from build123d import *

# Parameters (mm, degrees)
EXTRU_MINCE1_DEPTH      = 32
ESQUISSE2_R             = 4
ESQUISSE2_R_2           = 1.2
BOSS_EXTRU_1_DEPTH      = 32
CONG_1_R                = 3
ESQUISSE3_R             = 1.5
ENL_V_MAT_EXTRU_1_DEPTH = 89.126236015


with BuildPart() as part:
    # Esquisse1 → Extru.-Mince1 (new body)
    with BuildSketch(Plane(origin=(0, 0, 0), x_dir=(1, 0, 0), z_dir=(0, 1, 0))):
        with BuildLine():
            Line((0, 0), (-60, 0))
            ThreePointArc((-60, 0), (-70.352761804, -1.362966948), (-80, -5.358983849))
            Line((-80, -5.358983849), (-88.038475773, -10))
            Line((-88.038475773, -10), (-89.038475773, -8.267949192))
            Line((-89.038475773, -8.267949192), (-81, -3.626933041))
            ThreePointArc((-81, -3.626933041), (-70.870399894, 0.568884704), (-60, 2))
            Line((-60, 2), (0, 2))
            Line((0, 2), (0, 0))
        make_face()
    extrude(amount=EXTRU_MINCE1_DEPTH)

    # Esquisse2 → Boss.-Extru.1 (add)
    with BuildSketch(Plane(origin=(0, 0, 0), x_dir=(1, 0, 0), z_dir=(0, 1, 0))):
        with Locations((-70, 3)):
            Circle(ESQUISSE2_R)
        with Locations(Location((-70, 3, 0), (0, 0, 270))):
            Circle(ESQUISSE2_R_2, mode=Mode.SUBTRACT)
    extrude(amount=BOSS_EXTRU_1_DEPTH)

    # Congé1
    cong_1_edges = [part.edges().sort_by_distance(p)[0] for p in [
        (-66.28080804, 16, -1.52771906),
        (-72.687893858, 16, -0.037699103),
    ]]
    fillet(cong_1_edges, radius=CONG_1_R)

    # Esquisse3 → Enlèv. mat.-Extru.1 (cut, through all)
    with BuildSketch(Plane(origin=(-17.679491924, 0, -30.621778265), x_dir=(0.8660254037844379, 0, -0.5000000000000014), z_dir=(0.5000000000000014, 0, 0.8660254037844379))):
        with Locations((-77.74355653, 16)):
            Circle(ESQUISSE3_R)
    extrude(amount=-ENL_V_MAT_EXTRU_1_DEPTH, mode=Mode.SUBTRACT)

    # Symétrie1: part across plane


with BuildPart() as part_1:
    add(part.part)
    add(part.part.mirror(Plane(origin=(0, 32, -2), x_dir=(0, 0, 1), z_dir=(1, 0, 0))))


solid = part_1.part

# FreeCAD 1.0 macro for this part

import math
import FreeCAD as App
import Part
import Sketcher

V = App.Vector
Q = App.Units.Quantity


def edges_at(feature, points):
    """Names of the edges that pass closest to the given points."""
    edges = feature.Shape.Edges
    near = lambda p: min(range(len(edges)), key=lambda i: edges[i].distToShape(Part.Vertex(*p))[0])
    return sorted({f"Edge{near(p) + 1}" for p in points})

doc = App.newDocument("Part")
params = doc.addObject("Spreadsheet::Sheet", "Params")
for row, (alias, value) in enumerate([
    ("sketch1_radius", "42 mm"),
    ("sketch1_radius2", "40 mm"),
    ("sketch1_width", "60 mm"),
    ("pad1_length", "32 mm"),
    ("sketch2_diameter", "8 mm"),
    ("sketch2_diameter2", "2.4 mm"),
    ("pad2_length", "32 mm"),
    ("fillet_radius", "3 mm"),
    ("sketch3_diameter", "3 mm"),
], start=1):
    params.set(f"A{row}", alias)
    params.set(f"B{row}", "=" + value)
    params.setAlias(f"B{row}", alias)

body = doc.addObject("PartDesign::Body", "Body")

# Sketch on XZ plane
sketch1 = body.newObject("Sketcher::SketchObject", "Sketch")
sketch1.AttachmentSupport = (doc.getObject("XZ_Plane"), [""])
sketch1.MapMode = "FlatFace"
sketch1.addGeometry([
    Part.LineSegment(V(-60, 0, 0), V(0, 0, 0)),  # 0
    Part.LineSegment(V(0, 0, 0), V(0, -2, 0)),  # 1
    Part.LineSegment(V(0, -2, 0), V(-60, -2, 0)),  # 2
    Part.ArcOfCircle(Part.Circle(V(-60, 40, 0), V(0, 0, 1), 42), math.radians(-120), math.radians(-90)),  # 3
    Part.LineSegment(V(-81, 3.6, 0), V(-89, 8.3, 0)),  # 4
    Part.LineSegment(V(-89, 8.3, 0), V(-88, 10, 0)),  # 5
    Part.LineSegment(V(-88, 10, 0), V(-80, 5.4, 0)),  # 6
    Part.ArcOfCircle(Part.Circle(V(-60, 40, 0), V(0, 0, 1), 40), math.radians(-120), math.radians(-90)),  # 7
], False)
sketch1.addConstraint([
    Sketcher.Constraint("Coincident", 0, 2, 1, 1),
    Sketcher.Constraint("Coincident", 1, 2, 2, 1),
    Sketcher.Constraint("Tangent", 2, 2, 3, 2),
    Sketcher.Constraint("Tangent", 3, 1, 4, 1),
    Sketcher.Constraint("Coincident", 4, 2, 5, 1),
    Sketcher.Constraint("Coincident", 5, 2, 6, 1),
    Sketcher.Constraint("Tangent", 6, 2, 7, 1),
    Sketcher.Constraint("Tangent", 7, 2, 0, 1),
    Sketcher.Constraint("Horizontal", 0),
    Sketcher.Constraint("Vertical", 1),
    Sketcher.Constraint("Horizontal", 2),
    Sketcher.Constraint("Coincident", 0, 2, -1, 1),
    Sketcher.Constraint("Coincident", 7, 3, 3, 3),
    Sketcher.Constraint("Perpendicular", 4, 5),
    Sketcher.Constraint("Perpendicular", 5, 6),
    Sketcher.Constraint("Radius", 3, 42.0),
    Sketcher.Constraint("Radius", 7, 40.0),
    Sketcher.Constraint("DistanceX", 0, 1, 0, 2, 60.0),
    Sketcher.Constraint("Angle", 4, Q("150 deg")),
    Sketcher.Constraint("DistanceY", -1, 1, 5, 2, 10.0),
])
sketch1.setExpression("Constraints[15]", "Params.sketch1_radius")
sketch1.setExpression("Constraints[16]", "Params.sketch1_radius2")
sketch1.setExpression("Constraints[17]", "Params.sketch1_width")
pad1 = body.newObject("PartDesign::Pad", "Pad")
pad1.Profile = sketch1
pad1.setExpression("Length", "Params.pad1_length")
pad1.Reversed = True

# Sketch on XZ plane
sketch2 = body.newObject("Sketcher::SketchObject", "Sketch001")
sketch2.AttachmentSupport = (doc.getObject("XZ_Plane"), [""])
sketch2.MapMode = "FlatFace"
sketch2.addGeometry([
    Part.Circle(V(-70, -3, 0), V(0, 0, 1), 4),
    Part.Circle(V(-70, -3, 0), V(0, 0, 1), 1.2),
], False)
sketch2.addConstraint([
    Sketcher.Constraint("Coincident", 1, 3, 0, 3),
    Sketcher.Constraint("Diameter", 0, 8.0),
    Sketcher.Constraint("Diameter", 1, 2.4),
    Sketcher.Constraint("DistanceX", 0, 3, -1, 1, 70.0),
    Sketcher.Constraint("DistanceY", 0, 3, -1, 1, 3.0),
])
sketch2.setExpression("Constraints[1]", "Params.sketch2_diameter")
sketch2.setExpression("Constraints[2]", "Params.sketch2_diameter2")
pad2 = body.newObject("PartDesign::Pad", "Pad001")
pad2.Profile = sketch2
pad2.setExpression("Length", "Params.pad2_length")
pad2.Reversed = True
doc.recompute()

fillet = body.newObject("PartDesign::Fillet", "Fillet")
fillet.Base = (pad2, edges_at(pad2, [(-66.281, 16, -1.528), (-72.688, 16, -0.038)]))
fillet.setExpression("Radius", "Params.fillet_radius")

# Sketch on an angled plane
sketch3 = body.newObject("Sketcher::SketchObject", "Sketch002")
sketch3.Placement = App.Placement(V(-17.679492, 0, -30.621778), App.Rotation(V(0.866025404, 0, -0.5), V(0, 1, 0), V(0.5, 0, 0.866025404), "ZXY"))
sketch3.addGeometry(Part.Circle(V(-77.7, 16, 0), V(0, 0, 1), 1.5), False)
sketch3.addConstraint([
    Sketcher.Constraint("Diameter", 0, 3.0),
    Sketcher.Constraint("DistanceY", -1, 1, 0, 3, 16.0),
    Sketcher.Constraint("DistanceX", 0, 3, -1, 1, 77.743557),
])
sketch3.setExpression("Constraints[0]", "Params.sketch3_diameter")
pocket1 = body.newObject("PartDesign::Pocket", "Pocket")
pocket1.Profile = sketch3
pocket1.Type = "ThroughAll"
body2 = doc.addObject("PartDesign::Body", "Body001")
doc.recompute()

body2.BaseFeature = body
doc.recompute()

mirroring = doc.addObject("Part::Mirroring", "Mirroring")
mirroring.Source = body
mirroring.Base = V(0, 32, -2)
mirroring.Normal = V(1, 0, 0)
body3 = doc.addObject("PartDesign::Body", "Body002")
body3.BaseFeature = mirroring
boolean = body2.newObject("PartDesign::Boolean", "Boolean")
boolean.Type = "Fuse"
boolean.addObjects([body3])
doc.recompute()
mirroring.Visibility = False

doc.recompute()
